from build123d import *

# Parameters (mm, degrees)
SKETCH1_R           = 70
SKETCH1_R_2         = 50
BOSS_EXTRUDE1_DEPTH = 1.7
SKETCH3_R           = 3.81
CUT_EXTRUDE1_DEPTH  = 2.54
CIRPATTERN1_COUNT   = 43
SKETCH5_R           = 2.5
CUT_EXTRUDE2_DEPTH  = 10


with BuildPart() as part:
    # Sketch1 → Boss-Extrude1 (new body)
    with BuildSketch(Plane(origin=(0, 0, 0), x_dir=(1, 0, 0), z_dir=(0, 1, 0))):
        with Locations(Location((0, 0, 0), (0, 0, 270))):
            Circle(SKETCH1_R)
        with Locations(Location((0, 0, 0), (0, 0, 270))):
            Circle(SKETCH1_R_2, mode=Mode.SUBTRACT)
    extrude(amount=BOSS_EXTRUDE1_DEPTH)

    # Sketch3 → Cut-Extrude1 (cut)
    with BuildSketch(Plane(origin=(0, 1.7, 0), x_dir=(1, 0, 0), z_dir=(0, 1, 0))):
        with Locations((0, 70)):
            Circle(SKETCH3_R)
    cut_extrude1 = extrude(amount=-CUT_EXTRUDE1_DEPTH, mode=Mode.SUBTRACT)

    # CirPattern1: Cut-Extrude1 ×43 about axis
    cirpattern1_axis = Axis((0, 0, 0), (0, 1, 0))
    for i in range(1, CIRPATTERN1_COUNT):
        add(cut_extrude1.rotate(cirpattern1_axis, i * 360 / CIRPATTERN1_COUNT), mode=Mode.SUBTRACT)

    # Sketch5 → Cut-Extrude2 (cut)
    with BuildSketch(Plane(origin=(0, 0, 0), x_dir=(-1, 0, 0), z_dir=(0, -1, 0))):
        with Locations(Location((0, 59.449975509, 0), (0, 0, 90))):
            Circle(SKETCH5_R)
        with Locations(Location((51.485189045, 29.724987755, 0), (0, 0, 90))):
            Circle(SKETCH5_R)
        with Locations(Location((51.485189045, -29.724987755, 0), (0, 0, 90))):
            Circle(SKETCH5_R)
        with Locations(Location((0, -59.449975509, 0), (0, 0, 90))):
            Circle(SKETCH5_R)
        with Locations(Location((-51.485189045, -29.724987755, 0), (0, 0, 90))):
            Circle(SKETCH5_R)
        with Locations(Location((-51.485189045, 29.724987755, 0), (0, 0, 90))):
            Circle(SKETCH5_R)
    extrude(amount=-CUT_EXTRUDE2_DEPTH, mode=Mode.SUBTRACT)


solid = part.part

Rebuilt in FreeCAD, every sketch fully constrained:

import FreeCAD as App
import Part
import Sketcher

doc = App.newDocument("Part")
body = doc.addObject("PartDesign::Body", "Body")

# Sketch on XZ plane
sketch1 = body.newObject("Sketcher::SketchObject", "Sketch")
sketch1.AttachmentSupport = (doc.getObject("XZ_Plane"), [""])
sketch1.MapMode = "FlatFace"
sketch1.addGeometry(Part.Circle(App.Vector(0, 0, 0), App.Vector(0, 0, 1), 70), False)
sketch1.addGeometry(Part.Circle(App.Vector(0, 0, 0), App.Vector(0, 0, 1), 50), False)
sketch1.addConstraint(Sketcher.Constraint("Coincident", 0, 3, -1, 1))
sketch1.addConstraint(Sketcher.Constraint("Coincident", 1, 3, -1, 1))
sketch1.addConstraint(Sketcher.Constraint("Diameter", 0, 140.0))
sketch1.addConstraint(Sketcher.Constraint("Diameter", 1, 100.0))
pad1 = body.newObject("PartDesign::Pad", "Pad")
pad1.Profile = sketch1
pad1.Length = 1.7
pad1.Reversed = True

# Sketch on XZ plane
sketch2 = body.newObject("Sketcher::SketchObject", "Sketch001")
sketch2.AttachmentSupport = (doc.getObject("XZ_Plane"), [""])
sketch2.MapMode = "FlatFace"
sketch2.AttachmentOffset = App.Placement(App.Vector(0, 0, -1.7), App.Rotation())
sketch2.addGeometry(Part.Circle(App.Vector(0, -70, 0), App.Vector(0, 0, 1), 3.8), False)
sketch2.addConstraint(Sketcher.Constraint("PointOnObject", 0, 3, -2))
sketch2.addConstraint(Sketcher.Constraint("Diameter", 0, 7.62))
sketch2.addConstraint(Sketcher.Constraint("DistanceY", 0, 3, -1, 1, 70.0))
pocket1 = body.newObject("PartDesign::Pocket", "Pocket")
pocket1.Profile = sketch2
pocket1.Length = 2.54
pocket1.Reversed = True
doc.recompute()

polarpattern = body.newObject("PartDesign::PolarPattern", "PolarPattern")
polarpattern.Originals = [pocket1]
polarpattern.Axis = (doc.getObject("Y_Axis"), [""])
polarpattern.Angle = 360
polarpattern.Occurrences = 43
body.Tip = polarpattern

# Sketch on XZ plane
sketch3 = body.newObject("Sketcher::SketchObject", "Sketch002")
sketch3.AttachmentSupport = (doc.getObject("XZ_Plane"), [""])
sketch3.MapMode = "FlatFace"
sketch3.addGeometry(Part.Circle(App.Vector(0, -59.4, 0), App.Vector(0, 0, 1), 2.5), False)
sketch3.addGeometry(Part.Circle(App.Vector(-51.5, -29.7, 0), App.Vector(0, 0, 1), 2.5), False)
sketch3.addGeometry(Part.Circle(App.Vector(-51.5, 29.7, 0), App.Vector(0, 0, 1), 2.5), False)
sketch3.addGeometry(Part.Circle(App.Vector(0, 59.4, 0), App.Vector(0, 0, 1), 2.5), False)
sketch3.addGeometry(Part.Circle(App.Vector(51.5, 29.7, 0), App.Vector(0, 0, 1), 2.5), False)
sketch3.addGeometry(Part.Circle(App.Vector(51.5, -29.7, 0), App.Vector(0, 0, 1), 2.5), False)
sketch3.addConstraint(Sketcher.Constraint("Equal", 0, 1))
sketch3.addConstraint(Sketcher.Constraint("Equal", 1, 2))
sketch3.addConstraint(Sketcher.Constraint("Equal", 2, 3))
sketch3.addConstraint(Sketcher.Constraint("Equal", 3, 4))
sketch3.addConstraint(Sketcher.Constraint("Equal", 4, 5))
sketch3.addConstraint(Sketcher.Constraint("Symmetric", 0, 3, 3, 3, -1, 1))
sketch3.addConstraint(Sketcher.Constraint("Symmetric", 1, 3, 4, 3, -1, 1))
sketch3.addConstraint(Sketcher.Constraint("Symmetric", 2, 3, 5, 3, -1, 1))
sketch3.addConstraint(Sketcher.Constraint("Symmetric", 2, 3, 4, 3, -2))
sketch3.addConstraint(Sketcher.Constraint("PointOnObject", 0, 3, -2))
sketch3.addConstraint(Sketcher.Constraint("Diameter", 0, 5.0))
sketch3.addConstraint(Sketcher.Constraint("DistanceX", 1, 3, -1, 1, 51.485189))
sketch3.addConstraint(Sketcher.Constraint("DistanceY", 0, 3, 3, 3, 118.899951))
sketch3.addConstraint(Sketcher.Constraint("DistanceY", 1, 3, -1, 1, 29.724988))
pocket2 = body.newObject("PartDesign::Pocket", "Pocket001")
pocket2.Profile = sketch3
pocket2.Length = 10

doc.recompute()
